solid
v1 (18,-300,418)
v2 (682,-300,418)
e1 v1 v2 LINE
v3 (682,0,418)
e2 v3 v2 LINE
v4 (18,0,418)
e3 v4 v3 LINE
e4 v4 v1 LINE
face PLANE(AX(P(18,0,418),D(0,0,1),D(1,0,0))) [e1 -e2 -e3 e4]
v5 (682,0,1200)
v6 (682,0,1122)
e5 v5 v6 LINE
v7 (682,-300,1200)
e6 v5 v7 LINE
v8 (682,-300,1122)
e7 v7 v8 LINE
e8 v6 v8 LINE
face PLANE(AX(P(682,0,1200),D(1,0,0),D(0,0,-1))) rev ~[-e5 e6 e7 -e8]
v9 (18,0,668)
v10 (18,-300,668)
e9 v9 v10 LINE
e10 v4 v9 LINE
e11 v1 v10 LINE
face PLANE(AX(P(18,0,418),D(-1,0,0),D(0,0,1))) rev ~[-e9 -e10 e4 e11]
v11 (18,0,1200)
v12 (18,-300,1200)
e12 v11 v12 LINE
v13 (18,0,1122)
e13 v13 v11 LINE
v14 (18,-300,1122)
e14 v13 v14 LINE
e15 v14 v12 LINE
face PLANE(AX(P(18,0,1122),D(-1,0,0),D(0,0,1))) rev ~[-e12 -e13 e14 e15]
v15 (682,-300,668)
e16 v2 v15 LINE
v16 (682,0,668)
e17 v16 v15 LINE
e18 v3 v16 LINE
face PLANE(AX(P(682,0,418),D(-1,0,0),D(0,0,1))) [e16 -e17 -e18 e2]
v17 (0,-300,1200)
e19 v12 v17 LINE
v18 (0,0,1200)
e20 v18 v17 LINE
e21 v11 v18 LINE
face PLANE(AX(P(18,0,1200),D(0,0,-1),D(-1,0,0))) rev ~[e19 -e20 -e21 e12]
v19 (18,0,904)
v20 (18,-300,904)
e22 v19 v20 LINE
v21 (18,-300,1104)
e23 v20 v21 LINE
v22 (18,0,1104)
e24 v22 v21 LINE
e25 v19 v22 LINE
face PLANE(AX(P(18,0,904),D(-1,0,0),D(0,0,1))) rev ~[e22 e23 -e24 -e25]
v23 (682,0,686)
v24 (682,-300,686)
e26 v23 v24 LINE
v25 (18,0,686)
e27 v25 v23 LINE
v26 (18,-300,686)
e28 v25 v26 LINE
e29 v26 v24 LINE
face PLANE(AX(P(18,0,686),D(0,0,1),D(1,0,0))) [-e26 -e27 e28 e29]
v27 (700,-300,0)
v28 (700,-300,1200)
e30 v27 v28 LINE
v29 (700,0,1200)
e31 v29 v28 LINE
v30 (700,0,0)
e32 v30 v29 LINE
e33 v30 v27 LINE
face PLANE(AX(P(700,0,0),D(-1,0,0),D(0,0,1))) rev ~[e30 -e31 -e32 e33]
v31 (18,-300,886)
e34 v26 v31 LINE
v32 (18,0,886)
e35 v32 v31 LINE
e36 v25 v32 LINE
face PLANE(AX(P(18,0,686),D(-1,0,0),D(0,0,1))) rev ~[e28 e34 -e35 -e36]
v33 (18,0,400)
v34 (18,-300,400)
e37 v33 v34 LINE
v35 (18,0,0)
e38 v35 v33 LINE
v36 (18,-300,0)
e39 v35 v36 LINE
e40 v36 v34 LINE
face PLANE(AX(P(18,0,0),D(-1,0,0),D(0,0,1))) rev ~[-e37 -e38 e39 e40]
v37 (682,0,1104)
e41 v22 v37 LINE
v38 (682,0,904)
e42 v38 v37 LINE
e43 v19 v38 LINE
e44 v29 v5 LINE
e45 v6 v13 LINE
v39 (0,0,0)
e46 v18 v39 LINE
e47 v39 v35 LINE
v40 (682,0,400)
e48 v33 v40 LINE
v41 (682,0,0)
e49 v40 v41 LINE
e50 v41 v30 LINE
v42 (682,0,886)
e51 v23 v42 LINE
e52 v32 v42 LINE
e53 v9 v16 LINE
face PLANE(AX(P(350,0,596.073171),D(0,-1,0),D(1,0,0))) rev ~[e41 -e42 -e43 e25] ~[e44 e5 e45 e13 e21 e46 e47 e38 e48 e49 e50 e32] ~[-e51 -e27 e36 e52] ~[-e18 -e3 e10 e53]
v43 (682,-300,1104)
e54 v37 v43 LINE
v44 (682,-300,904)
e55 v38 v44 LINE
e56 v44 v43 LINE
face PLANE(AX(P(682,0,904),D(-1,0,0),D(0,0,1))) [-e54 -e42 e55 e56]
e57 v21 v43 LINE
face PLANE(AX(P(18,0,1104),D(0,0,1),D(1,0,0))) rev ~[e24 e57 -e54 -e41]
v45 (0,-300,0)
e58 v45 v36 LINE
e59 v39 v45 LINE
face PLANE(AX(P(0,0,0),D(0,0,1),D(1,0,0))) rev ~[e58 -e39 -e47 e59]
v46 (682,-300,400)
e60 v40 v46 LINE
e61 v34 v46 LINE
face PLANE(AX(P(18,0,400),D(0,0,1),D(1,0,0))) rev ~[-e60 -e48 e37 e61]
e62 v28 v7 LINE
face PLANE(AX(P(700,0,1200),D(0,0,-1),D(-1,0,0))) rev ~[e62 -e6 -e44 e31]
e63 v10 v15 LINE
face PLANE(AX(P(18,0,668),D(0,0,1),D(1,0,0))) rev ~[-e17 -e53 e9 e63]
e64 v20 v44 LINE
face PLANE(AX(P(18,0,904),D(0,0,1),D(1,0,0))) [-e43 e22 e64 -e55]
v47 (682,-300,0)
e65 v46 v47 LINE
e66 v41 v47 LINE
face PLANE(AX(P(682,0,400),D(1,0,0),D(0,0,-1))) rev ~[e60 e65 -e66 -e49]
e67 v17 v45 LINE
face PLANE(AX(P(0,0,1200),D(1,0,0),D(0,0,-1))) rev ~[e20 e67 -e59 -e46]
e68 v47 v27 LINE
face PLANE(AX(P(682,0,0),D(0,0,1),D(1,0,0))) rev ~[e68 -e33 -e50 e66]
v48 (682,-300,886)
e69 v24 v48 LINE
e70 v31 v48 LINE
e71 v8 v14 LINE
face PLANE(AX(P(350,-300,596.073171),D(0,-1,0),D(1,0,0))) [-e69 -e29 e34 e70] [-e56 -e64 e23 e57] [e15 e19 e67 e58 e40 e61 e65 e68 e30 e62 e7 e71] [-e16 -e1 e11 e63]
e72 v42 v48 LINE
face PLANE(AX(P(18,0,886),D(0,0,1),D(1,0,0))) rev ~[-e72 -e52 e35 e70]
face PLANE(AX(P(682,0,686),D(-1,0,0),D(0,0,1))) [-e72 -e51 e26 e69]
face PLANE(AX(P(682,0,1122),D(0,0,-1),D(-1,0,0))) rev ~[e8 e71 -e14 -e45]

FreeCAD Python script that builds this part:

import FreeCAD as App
import Part
import Sketcher

V = App.Vector


def add_polygon(sketch, points):
    """Adds a closed chain of lines whose ends are joined by coincident constraints."""
    first, n = sketch.GeometryCount, len(points)
    for a, b in zip(points, points[1:] + points[:1]):
        sketch.addGeometry(Part.LineSegment(App.Vector(*a, 0), App.Vector(*b, 0)), False)
    for i in range(n):
        sketch.addConstraint(Sketcher.Constraint("Coincident", first + i, 2, first + (i + 1) % n, 1))

doc = App.newDocument("Part")
body = doc.addObject("PartDesign::Body", "Body")

# Sketch on XZ plane
sketch1 = body.newObject("Sketcher::SketchObject", "Sketch")
sketch1.AttachmentSupport = (doc.getObject("XZ_Plane"), [""])
sketch1.MapMode = "FlatFace"
add_polygon(sketch1, [(0, 1200), (0, 0), (18, 0), (18, 400), (682, 400), (682, 0), (700, 0), (700, 1200), (682, 1200), (682, 1122), (18, 1122), (18, 1200)])  # lines 0-11
add_polygon(sketch1, [(682, 418), (18, 418), (18, 668), (682, 668)])  # lines 12-15
add_polygon(sketch1, [(682, 686), (18, 686), (18, 886), (682, 886)])  # lines 16-19
add_polygon(sketch1, [(682, 904), (18, 904), (18, 1104), (682, 1104)])  # lines 20-23
sketch1.addConstraint([
    Sketcher.Constraint("Vertical", 0),
    Sketcher.Constraint("Horizontal", 1),
    Sketcher.Constraint("Vertical", 2),
    Sketcher.Constraint("Horizontal", 3),
    Sketcher.Constraint("Vertical", 4),
    Sketcher.Constraint("Horizontal", 5),
    Sketcher.Constraint("Vertical", 6),
    Sketcher.Constraint("Horizontal", 7),
    Sketcher.Constraint("Vertical", 8),
    Sketcher.Constraint("Horizontal", 9),
    Sketcher.Constraint("Vertical", 10),
    Sketcher.Constraint("Horizontal", 11),
    Sketcher.Constraint("Horizontal", 12),
    Sketcher.Constraint("Vertical", 13),
    Sketcher.Constraint("Horizontal", 14),
    Sketcher.Constraint("Vertical", 15),
    Sketcher.Constraint("Horizontal", 16),
    Sketcher.Constraint("Vertical", 17),
    Sketcher.Constraint("Horizontal", 18),
    Sketcher.Constraint("Vertical", 19),
    Sketcher.Constraint("Horizontal", 20),
    Sketcher.Constraint("Vertical", 21),
    Sketcher.Constraint("Horizontal", 22),
    Sketcher.Constraint("Vertical", 23),
    Sketcher.Constraint("Coincident", 0, 2, -1, 1),
    Sketcher.Constraint("PointOnObject", 4, 2, -1),
    Sketcher.Constraint("Horizontal", 7, 2, 10, 2),
    Sketcher.Constraint("Vertical", 4, 2, 7, 2),
    Sketcher.Constraint("Vertical", 2, 2, 9, 2),
    Sketcher.Constraint("Vertical", 10, 2, 12, 2),
    Sketcher.Constraint("Vertical", 8, 2, 14, 2),
    Sketcher.Constraint("Vertical", 13, 2, 16, 2),
    Sketcher.Constraint("Vertical", 15, 2, 18, 2),
    Sketcher.Constraint("Vertical", 17, 2, 20, 2),
    Sketcher.Constraint("Vertical", 19, 2, 22, 2),
    Sketcher.Constraint("Equal", 1, 5),
    Sketcher.Constraint("Equal", 19, 21),
    Sketcher.Constraint("DistanceX", 1, 1, 1, 2, 18.0),
    Sketcher.Constraint("DistanceX", 3, 1, 3, 2, 664.0),
    Sketcher.Constraint("DistanceY", 0, 2, 0, 1, 1200.0),
    Sketcher.Constraint("DistanceY", 2, 1, 2, 2, 400.0),
    Sketcher.Constraint("DistanceY", 8, 2, 8, 1, 78.0),
    Sketcher.Constraint("DistanceY", 13, 1, 13, 2, 250.0),
    Sketcher.Constraint("DistanceY", 17, 1, 17, 2, 200.0),
    Sketcher.Constraint("DistanceY", -1, 1, 12, 2, 418.0),
    Sketcher.Constraint("DistanceY", -1, 1, 16, 2, 686.0),
    Sketcher.Constraint("DistanceY", -1, 1, 20, 2, 904.0),
])
pad1 = body.newObject("PartDesign::Pad", "Pad")
pad1.Profile = sketch1
pad1.Length = 300

doc.recompute()
